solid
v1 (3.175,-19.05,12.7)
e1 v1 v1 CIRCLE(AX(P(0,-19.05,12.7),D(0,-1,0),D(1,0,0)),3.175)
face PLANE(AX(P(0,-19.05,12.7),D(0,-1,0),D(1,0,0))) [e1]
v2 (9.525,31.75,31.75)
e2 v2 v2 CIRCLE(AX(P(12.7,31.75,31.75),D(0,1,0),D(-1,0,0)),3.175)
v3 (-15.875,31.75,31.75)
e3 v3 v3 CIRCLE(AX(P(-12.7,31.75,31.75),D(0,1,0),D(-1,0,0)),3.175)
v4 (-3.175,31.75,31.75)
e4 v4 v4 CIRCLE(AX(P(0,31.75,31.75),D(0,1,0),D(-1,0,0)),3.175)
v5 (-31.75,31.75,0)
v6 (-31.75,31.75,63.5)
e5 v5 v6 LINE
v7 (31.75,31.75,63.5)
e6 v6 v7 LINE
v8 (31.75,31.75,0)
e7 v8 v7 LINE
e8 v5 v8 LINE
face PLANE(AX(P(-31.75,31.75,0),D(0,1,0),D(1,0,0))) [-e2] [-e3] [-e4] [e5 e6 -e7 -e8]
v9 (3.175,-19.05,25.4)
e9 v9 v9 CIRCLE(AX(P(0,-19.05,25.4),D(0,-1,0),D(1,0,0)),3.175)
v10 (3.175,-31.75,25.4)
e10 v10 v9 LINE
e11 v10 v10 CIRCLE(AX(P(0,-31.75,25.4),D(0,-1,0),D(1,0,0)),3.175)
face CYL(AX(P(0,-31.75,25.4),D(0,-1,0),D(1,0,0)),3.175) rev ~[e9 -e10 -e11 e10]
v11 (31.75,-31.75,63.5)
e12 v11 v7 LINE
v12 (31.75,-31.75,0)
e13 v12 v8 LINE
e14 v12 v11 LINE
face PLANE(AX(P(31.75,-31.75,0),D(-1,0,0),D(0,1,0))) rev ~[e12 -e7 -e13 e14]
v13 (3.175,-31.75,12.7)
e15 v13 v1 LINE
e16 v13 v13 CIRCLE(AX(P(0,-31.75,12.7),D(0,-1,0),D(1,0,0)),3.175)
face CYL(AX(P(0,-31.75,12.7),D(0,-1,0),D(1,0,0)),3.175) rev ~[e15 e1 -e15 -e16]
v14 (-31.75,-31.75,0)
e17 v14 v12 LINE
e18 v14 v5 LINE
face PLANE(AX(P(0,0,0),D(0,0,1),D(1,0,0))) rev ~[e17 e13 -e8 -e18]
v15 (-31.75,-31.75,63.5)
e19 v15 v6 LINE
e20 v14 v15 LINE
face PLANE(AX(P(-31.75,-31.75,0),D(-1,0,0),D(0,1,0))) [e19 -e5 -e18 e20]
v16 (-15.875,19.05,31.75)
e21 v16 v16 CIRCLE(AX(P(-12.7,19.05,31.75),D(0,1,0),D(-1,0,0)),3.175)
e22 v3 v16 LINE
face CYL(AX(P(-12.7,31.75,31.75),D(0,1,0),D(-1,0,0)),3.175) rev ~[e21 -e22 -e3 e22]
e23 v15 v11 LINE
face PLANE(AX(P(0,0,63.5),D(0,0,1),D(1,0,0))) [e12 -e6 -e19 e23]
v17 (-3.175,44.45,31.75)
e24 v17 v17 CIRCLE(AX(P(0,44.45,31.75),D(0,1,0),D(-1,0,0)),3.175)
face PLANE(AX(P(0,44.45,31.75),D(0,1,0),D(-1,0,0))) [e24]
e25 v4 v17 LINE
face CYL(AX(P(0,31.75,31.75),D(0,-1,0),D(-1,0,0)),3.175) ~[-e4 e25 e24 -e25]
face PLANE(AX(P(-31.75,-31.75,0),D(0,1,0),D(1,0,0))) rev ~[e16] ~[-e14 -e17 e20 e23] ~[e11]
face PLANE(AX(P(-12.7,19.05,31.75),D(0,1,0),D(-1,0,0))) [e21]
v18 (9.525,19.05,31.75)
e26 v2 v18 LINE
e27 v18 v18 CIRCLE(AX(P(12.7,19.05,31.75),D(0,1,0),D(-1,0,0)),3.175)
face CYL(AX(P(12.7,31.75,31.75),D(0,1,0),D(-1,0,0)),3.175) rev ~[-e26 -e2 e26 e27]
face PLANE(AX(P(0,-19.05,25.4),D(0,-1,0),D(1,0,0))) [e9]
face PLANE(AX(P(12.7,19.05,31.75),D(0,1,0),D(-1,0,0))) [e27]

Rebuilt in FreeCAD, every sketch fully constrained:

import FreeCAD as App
import Part
import Sketcher

V = App.Vector
Q = App.Units.Quantity


def add_polygon(sketch, points):
    """Adds a closed chain of lines whose ends are joined by coincident constraints."""
    first, n = sketch.GeometryCount, len(points)
    for a, b in zip(points, points[1:] + points[:1]):
        sketch.addGeometry(Part.LineSegment(App.Vector(*a, 0), App.Vector(*b, 0)), False)
    for i in range(n):
        sketch.addConstraint(Sketcher.Constraint("Coincident", first + i, 2, first + (i + 1) % n, 1))

doc = App.newDocument("Part")
body = doc.addObject("PartDesign::Body", "Body")

# Sketch on XY plane
sketch1 = body.newObject("Sketcher::SketchObject", "Sketch")
sketch1.AttachmentSupport = (doc.getObject("XY_Plane"), [""])
sketch1.MapMode = "FlatFace"
add_polygon(sketch1, [(-31.75, 31.75), (-31.75, -31.75), (31.75, -31.75), (31.75, 31.75)])  # lines 0-3
sketch1.addConstraint(Sketcher.Constraint("Vertical", 0))
sketch1.addConstraint(Sketcher.Constraint("Horizontal", 1))
sketch1.addConstraint(Sketcher.Constraint("Vertical", 2))
sketch1.addConstraint(Sketcher.Constraint("Horizontal", 3))
sketch1.addConstraint(Sketcher.Constraint("Symmetric", 0, 2, 2, 2, -1, 1))
sketch1.addConstraint(Sketcher.Constraint("Equal", 3, 0))
sketch1.addConstraint(Sketcher.Constraint("DistanceX", 1, 1, 1, 2, Q("2.5 in")))
pad1 = body.newObject("PartDesign::Pad", "Pad")
pad1.Profile = sketch1
pad1.Length = Q("2.5 in")

# Sketch on XZ plane
sketch2 = body.newObject("Sketcher::SketchObject", "Sketch001")
sketch2.AttachmentSupport = (doc.getObject("XZ_Plane"), [""])
sketch2.MapMode = "FlatFace"
sketch2.AttachmentOffset = App.Placement(V(0, 0, -1.25 * 25.4), App.Rotation())
sketch2.addGeometry(Part.Circle(V(0, 31.75, 0), V(0, 0, 1), 3.175), False)
sketch2.addConstraint(Sketcher.Constraint("PointOnObject", 0, 3, -2))
sketch2.addConstraint(Sketcher.Constraint("Diameter", 0, Q("0.25 in")))
sketch2.addConstraint(Sketcher.Constraint("DistanceY", -1, 1, 0, 3, Q("1.25 in")))
pad2 = body.newObject("PartDesign::Pad", "Pad001")
pad2.Profile = sketch2
pad2.Length = Q("0.5 in")
pad2.Reversed = True

# Sketch on XZ plane
sketch3 = body.newObject("Sketcher::SketchObject", "Sketch002")
sketch3.AttachmentSupport = (doc.getObject("XZ_Plane"), [""])
sketch3.MapMode = "FlatFace"
sketch3.AttachmentOffset = App.Placement(V(0, 0, -1.25 * 25.4), App.Rotation())
sketch3.addGeometry(Part.Circle(V(12.7, 31.75, 0), V(0, 0, 1), 3.175), False)
sketch3.addGeometry(Part.Circle(V(-12.7, 31.75, 0), V(0, 0, 1), 3.175), False)
sketch3.addConstraint(Sketcher.Constraint("Equal", 0, 1))
sketch3.addConstraint(Sketcher.Constraint("Symmetric", 0, 3, 1, 3, -2))
sketch3.addConstraint(Sketcher.Constraint("Diameter", 0, Q("0.25 in")))
sketch3.addConstraint(Sketcher.Constraint("DistanceX", 1, 3, 0, 3, Q("1 in")))
sketch3.addConstraint(Sketcher.Constraint("DistanceY", -1, 1, 0, 3, Q("1.25 in")))
pocket1 = body.newObject("PartDesign::Pocket", "Pocket")
pocket1.Profile = sketch3
pocket1.Length = Q("0.5 in")
pocket1.Reversed = True

# Sketch on XZ plane
sketch4 = body.newObject("Sketcher::SketchObject", "Sketch003")
sketch4.AttachmentSupport = (doc.getObject("XZ_Plane"), [""])
sketch4.MapMode = "FlatFace"
sketch4.AttachmentOffset = App.Placement(V(0, 0, 1.25 * 25.4), App.Rotation())
sketch4.addGeometry(Part.Circle(V(0, 25.4, 0), V(0, 0, 1), 3.175), False)
sketch4.addGeometry(Part.Circle(V(0, 12.7, 0), V(0, 0, 1), 3.175), False)
sketch4.addConstraint(Sketcher.Constraint("Equal", 0, 1))
sketch4.addConstraint(Sketcher.Constraint("PointOnObject", 0, 3, -2))
sketch4.addConstraint(Sketcher.Constraint("PointOnObject", 1, 3, -2))
sketch4.addConstraint(Sketcher.Constraint("Diameter", 0, Q("0.25 in")))
sketch4.addConstraint(Sketcher.Constraint("DistanceY", -1, 1, 0, 3, Q("1 in")))
sketch4.addConstraint(Sketcher.Constraint("DistanceY", -1, 1, 1, 3, Q("0.5 in")))
pocket2 = body.newObject("PartDesign::Pocket", "Pocket001")
pocket2.Profile = sketch4
pocket2.Length = Q("0.5 in")

doc.recompute()
